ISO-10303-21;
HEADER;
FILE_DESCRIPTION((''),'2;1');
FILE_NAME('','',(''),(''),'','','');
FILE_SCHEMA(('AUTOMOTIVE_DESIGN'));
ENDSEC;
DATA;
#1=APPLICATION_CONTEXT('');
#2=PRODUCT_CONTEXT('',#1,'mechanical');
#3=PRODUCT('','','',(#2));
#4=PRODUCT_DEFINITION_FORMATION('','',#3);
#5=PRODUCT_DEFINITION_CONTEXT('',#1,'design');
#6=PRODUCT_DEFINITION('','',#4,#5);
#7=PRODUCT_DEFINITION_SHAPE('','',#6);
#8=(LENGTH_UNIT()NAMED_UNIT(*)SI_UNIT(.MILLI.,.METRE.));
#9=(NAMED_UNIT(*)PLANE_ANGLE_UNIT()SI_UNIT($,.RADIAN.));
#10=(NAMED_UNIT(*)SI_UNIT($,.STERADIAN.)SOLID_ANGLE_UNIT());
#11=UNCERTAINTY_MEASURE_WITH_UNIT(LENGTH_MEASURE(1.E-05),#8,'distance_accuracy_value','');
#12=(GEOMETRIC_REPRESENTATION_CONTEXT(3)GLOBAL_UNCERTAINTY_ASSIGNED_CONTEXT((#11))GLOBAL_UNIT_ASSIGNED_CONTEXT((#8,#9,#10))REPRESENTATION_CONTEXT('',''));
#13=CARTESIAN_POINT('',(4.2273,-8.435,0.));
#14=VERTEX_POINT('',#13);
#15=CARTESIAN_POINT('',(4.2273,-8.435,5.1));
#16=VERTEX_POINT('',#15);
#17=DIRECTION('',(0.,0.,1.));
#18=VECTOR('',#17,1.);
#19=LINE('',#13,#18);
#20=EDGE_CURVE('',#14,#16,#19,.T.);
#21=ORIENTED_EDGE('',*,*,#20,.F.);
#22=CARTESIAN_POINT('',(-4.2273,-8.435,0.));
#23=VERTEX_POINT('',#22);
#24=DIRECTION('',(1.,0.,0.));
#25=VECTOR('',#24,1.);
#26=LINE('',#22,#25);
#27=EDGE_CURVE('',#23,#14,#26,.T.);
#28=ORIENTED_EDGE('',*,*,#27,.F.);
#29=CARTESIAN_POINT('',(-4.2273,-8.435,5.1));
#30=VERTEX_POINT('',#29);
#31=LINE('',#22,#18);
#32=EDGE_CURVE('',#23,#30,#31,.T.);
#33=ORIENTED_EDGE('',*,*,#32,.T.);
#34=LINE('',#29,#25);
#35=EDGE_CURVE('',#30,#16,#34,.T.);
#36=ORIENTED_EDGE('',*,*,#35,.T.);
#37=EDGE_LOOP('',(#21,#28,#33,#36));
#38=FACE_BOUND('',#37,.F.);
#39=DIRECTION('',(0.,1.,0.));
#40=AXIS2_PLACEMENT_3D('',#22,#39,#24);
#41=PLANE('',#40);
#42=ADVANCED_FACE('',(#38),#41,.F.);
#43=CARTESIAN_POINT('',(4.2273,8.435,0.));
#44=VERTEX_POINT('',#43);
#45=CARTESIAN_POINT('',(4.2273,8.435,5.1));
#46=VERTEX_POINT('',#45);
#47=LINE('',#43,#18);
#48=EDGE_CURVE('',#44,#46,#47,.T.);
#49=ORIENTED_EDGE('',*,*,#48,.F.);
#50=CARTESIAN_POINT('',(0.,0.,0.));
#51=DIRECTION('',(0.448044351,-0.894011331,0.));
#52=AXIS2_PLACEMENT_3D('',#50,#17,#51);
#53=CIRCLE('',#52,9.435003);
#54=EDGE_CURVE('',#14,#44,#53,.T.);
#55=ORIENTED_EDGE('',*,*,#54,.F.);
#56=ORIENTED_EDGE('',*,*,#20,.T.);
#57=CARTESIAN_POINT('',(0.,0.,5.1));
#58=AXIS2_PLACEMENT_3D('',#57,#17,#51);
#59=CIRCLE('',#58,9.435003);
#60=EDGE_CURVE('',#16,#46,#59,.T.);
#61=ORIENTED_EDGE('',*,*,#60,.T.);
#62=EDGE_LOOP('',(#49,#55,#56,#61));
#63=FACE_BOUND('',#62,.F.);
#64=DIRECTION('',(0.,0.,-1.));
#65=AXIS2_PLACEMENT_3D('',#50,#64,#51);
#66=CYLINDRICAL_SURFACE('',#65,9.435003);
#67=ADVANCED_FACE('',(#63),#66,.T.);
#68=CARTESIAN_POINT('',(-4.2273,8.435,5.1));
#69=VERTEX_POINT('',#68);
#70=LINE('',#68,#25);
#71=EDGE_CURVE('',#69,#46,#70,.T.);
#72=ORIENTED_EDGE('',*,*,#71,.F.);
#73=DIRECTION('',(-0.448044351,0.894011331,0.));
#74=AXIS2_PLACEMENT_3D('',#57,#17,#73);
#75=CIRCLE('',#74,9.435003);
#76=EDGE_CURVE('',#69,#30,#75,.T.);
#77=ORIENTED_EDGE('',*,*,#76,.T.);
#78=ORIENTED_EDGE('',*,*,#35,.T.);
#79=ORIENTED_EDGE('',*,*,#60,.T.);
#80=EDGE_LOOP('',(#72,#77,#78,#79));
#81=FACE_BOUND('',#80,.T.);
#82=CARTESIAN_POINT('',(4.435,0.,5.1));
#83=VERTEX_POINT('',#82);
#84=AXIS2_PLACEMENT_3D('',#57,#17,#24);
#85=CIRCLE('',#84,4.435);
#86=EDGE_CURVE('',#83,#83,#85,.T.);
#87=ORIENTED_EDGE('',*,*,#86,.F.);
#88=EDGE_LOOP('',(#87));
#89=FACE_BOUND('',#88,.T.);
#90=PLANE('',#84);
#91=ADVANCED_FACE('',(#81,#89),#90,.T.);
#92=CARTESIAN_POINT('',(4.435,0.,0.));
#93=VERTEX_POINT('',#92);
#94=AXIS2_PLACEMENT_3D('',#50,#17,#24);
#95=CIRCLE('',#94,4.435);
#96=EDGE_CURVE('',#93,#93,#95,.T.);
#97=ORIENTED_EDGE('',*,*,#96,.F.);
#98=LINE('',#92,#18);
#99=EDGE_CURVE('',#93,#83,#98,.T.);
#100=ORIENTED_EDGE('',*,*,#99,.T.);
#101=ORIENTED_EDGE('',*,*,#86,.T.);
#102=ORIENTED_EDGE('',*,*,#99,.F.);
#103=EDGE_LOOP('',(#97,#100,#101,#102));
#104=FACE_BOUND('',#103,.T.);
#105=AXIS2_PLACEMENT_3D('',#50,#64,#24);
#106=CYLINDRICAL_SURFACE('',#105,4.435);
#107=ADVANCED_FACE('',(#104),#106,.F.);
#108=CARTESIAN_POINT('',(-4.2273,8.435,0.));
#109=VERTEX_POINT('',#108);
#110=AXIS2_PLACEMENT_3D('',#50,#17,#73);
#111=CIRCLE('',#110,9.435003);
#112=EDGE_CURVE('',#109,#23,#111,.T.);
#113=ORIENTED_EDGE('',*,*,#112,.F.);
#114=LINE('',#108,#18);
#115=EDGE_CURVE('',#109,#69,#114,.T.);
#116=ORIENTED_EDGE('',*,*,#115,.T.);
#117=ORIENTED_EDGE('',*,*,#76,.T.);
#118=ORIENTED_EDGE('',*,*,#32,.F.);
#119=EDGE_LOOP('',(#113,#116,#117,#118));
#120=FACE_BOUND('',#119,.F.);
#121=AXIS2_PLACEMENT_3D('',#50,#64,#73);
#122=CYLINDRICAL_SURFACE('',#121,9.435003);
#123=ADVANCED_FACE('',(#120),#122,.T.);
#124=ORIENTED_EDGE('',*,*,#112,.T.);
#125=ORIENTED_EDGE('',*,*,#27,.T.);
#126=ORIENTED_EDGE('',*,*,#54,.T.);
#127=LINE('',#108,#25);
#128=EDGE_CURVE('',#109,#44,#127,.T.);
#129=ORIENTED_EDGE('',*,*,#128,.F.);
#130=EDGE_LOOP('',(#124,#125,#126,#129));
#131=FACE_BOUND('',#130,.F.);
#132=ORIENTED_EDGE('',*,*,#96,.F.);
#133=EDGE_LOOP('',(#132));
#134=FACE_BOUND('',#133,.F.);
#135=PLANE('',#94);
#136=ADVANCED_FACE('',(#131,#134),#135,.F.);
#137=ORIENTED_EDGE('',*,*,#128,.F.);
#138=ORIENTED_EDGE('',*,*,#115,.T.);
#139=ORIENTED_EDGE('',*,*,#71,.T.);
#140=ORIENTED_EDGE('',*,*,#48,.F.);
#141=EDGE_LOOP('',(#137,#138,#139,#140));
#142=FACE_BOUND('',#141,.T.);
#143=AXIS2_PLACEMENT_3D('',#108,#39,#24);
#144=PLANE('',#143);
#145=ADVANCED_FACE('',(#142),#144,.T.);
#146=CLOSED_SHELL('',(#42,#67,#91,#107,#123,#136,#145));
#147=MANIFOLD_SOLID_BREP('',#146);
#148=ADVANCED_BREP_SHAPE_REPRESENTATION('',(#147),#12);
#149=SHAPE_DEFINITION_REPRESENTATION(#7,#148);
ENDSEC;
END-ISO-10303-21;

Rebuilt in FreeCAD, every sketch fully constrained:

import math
import FreeCAD as App
import Part
import Sketcher

V = App.Vector
Q = App.Units.Quantity

doc = App.newDocument("Part")
body = doc.addObject("PartDesign::Body", "Body")

sketch1 = body.newObject("Sketcher::SketchObject", "Sketch")
sketch1.AttachmentSupport = (doc.getObject("XY_Plane"), [""])
sketch1.MapMode = "FlatFace"
sketch1.addGeometry(Part.LineSegment(V(4.2, 8.4, 0), V(-4.2, 8.4, 0)), False)
sketch1.addGeometry(Part.ArcOfCircle(Part.Circle(V(0, 0, 0), V(0, 0, 1), 9.4), math.radians(117), math.radians(243)), False)
sketch1.addGeometry(Part.LineSegment(V(-4.2, -8.4, 0), V(4.2, -8.4, 0)), False)
sketch1.addGeometry(Part.ArcOfCircle(Part.Circle(V(0, 0, 0), V(0, 0, 1), 9.4), math.radians(-63), math.radians(63)), False)
sketch1.addGeometry(Part.Circle(V(0, 0, 0), V(0, 0, 1), 4.4), False)
sketch1.addConstraint(Sketcher.Constraint("Coincident", 0, 2, 1, 1))
sketch1.addConstraint(Sketcher.Constraint("Coincident", 1, 2, 2, 1))
sketch1.addConstraint(Sketcher.Constraint("Coincident", 2, 2, 3, 1))
sketch1.addConstraint(Sketcher.Constraint("Coincident", 3, 2, 0, 1))
sketch1.addConstraint(Sketcher.Constraint("Horizontal", 0))
sketch1.addConstraint(Sketcher.Constraint("Horizontal", 2))
sketch1.addConstraint(Sketcher.Constraint("Coincident", 1, 3, -1, 1))
sketch1.addConstraint(Sketcher.Constraint("Coincident", 3, 3, -1, 1))
sketch1.addConstraint(Sketcher.Constraint("Coincident", 4, 3, -1, 1))
sketch1.addConstraint(Sketcher.Constraint("Equal", 1, 3))
sketch1.addConstraint(Sketcher.Constraint("Vertical", 0, 2, 1, 2))
sketch1.addConstraint(Sketcher.Constraint("Diameter", 4, Q("8.87 mm")))
sketch1.addConstraint(Sketcher.Constraint("DistanceY", 1, 2, 0, 2, Q("16.87 mm")))
sketch1.addConstraint(Sketcher.Constraint("Radius", 1, Q("9.435 mm")))
pad1 = body.newObject("PartDesign::Pad", "Pad")
pad1.Profile = sketch1
pad1.Length = 5.1

doc.recompute()
